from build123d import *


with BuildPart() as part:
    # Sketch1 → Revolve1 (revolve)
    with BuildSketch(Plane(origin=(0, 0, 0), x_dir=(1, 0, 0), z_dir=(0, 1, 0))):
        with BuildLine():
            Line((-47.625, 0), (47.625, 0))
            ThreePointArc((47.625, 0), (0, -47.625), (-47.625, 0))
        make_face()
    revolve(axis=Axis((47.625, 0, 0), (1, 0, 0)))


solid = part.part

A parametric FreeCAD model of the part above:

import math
import FreeCAD as App
import Part
import Sketcher

V = App.Vector
Q = App.Units.Quantity

doc = App.newDocument("Part")
body = doc.addObject("PartDesign::Body", "Body")

# Sketch on XZ plane
sketch1 = doc.addObject("Sketcher::SketchObject", "Sketch")
body.addObject(sketch1)
sketch1.AttachmentSupport = (doc.XZ_Plane, [""])
sketch1.MapMode = "FlatFace"
sketch1.addGeometry([
    Part.LineSegment(V(48, 0, 0), V(-48, 0, 0)),
    Part.ArcOfCircle(Part.Circle(V(0, 0, 0), V(0, 0, 1), 48), math.radians(0), math.radians(180)),
], False)
sketch1.addConstraint([
    Sketcher.Constraint("Coincident", 0, 1, 1, 1),
    Sketcher.Constraint("Coincident", 1, 2, 0, 2),
    Sketcher.Constraint("Horizontal", 0),
    Sketcher.Constraint("Coincident", 1, 3, -1, 1),
    Sketcher.Constraint("PointOnObject", 0, 1, -1),
    Sketcher.Constraint("Radius", 1, Q("1.875 in")),
])
revolution = doc.addObject("PartDesign::Revolution", "Revolution")
body.addObject(revolution)
revolution.Profile = sketch1
revolution.ReferenceAxis = (sketch1, ["H_Axis"])
revolution.Angle = 360

doc.recompute()
